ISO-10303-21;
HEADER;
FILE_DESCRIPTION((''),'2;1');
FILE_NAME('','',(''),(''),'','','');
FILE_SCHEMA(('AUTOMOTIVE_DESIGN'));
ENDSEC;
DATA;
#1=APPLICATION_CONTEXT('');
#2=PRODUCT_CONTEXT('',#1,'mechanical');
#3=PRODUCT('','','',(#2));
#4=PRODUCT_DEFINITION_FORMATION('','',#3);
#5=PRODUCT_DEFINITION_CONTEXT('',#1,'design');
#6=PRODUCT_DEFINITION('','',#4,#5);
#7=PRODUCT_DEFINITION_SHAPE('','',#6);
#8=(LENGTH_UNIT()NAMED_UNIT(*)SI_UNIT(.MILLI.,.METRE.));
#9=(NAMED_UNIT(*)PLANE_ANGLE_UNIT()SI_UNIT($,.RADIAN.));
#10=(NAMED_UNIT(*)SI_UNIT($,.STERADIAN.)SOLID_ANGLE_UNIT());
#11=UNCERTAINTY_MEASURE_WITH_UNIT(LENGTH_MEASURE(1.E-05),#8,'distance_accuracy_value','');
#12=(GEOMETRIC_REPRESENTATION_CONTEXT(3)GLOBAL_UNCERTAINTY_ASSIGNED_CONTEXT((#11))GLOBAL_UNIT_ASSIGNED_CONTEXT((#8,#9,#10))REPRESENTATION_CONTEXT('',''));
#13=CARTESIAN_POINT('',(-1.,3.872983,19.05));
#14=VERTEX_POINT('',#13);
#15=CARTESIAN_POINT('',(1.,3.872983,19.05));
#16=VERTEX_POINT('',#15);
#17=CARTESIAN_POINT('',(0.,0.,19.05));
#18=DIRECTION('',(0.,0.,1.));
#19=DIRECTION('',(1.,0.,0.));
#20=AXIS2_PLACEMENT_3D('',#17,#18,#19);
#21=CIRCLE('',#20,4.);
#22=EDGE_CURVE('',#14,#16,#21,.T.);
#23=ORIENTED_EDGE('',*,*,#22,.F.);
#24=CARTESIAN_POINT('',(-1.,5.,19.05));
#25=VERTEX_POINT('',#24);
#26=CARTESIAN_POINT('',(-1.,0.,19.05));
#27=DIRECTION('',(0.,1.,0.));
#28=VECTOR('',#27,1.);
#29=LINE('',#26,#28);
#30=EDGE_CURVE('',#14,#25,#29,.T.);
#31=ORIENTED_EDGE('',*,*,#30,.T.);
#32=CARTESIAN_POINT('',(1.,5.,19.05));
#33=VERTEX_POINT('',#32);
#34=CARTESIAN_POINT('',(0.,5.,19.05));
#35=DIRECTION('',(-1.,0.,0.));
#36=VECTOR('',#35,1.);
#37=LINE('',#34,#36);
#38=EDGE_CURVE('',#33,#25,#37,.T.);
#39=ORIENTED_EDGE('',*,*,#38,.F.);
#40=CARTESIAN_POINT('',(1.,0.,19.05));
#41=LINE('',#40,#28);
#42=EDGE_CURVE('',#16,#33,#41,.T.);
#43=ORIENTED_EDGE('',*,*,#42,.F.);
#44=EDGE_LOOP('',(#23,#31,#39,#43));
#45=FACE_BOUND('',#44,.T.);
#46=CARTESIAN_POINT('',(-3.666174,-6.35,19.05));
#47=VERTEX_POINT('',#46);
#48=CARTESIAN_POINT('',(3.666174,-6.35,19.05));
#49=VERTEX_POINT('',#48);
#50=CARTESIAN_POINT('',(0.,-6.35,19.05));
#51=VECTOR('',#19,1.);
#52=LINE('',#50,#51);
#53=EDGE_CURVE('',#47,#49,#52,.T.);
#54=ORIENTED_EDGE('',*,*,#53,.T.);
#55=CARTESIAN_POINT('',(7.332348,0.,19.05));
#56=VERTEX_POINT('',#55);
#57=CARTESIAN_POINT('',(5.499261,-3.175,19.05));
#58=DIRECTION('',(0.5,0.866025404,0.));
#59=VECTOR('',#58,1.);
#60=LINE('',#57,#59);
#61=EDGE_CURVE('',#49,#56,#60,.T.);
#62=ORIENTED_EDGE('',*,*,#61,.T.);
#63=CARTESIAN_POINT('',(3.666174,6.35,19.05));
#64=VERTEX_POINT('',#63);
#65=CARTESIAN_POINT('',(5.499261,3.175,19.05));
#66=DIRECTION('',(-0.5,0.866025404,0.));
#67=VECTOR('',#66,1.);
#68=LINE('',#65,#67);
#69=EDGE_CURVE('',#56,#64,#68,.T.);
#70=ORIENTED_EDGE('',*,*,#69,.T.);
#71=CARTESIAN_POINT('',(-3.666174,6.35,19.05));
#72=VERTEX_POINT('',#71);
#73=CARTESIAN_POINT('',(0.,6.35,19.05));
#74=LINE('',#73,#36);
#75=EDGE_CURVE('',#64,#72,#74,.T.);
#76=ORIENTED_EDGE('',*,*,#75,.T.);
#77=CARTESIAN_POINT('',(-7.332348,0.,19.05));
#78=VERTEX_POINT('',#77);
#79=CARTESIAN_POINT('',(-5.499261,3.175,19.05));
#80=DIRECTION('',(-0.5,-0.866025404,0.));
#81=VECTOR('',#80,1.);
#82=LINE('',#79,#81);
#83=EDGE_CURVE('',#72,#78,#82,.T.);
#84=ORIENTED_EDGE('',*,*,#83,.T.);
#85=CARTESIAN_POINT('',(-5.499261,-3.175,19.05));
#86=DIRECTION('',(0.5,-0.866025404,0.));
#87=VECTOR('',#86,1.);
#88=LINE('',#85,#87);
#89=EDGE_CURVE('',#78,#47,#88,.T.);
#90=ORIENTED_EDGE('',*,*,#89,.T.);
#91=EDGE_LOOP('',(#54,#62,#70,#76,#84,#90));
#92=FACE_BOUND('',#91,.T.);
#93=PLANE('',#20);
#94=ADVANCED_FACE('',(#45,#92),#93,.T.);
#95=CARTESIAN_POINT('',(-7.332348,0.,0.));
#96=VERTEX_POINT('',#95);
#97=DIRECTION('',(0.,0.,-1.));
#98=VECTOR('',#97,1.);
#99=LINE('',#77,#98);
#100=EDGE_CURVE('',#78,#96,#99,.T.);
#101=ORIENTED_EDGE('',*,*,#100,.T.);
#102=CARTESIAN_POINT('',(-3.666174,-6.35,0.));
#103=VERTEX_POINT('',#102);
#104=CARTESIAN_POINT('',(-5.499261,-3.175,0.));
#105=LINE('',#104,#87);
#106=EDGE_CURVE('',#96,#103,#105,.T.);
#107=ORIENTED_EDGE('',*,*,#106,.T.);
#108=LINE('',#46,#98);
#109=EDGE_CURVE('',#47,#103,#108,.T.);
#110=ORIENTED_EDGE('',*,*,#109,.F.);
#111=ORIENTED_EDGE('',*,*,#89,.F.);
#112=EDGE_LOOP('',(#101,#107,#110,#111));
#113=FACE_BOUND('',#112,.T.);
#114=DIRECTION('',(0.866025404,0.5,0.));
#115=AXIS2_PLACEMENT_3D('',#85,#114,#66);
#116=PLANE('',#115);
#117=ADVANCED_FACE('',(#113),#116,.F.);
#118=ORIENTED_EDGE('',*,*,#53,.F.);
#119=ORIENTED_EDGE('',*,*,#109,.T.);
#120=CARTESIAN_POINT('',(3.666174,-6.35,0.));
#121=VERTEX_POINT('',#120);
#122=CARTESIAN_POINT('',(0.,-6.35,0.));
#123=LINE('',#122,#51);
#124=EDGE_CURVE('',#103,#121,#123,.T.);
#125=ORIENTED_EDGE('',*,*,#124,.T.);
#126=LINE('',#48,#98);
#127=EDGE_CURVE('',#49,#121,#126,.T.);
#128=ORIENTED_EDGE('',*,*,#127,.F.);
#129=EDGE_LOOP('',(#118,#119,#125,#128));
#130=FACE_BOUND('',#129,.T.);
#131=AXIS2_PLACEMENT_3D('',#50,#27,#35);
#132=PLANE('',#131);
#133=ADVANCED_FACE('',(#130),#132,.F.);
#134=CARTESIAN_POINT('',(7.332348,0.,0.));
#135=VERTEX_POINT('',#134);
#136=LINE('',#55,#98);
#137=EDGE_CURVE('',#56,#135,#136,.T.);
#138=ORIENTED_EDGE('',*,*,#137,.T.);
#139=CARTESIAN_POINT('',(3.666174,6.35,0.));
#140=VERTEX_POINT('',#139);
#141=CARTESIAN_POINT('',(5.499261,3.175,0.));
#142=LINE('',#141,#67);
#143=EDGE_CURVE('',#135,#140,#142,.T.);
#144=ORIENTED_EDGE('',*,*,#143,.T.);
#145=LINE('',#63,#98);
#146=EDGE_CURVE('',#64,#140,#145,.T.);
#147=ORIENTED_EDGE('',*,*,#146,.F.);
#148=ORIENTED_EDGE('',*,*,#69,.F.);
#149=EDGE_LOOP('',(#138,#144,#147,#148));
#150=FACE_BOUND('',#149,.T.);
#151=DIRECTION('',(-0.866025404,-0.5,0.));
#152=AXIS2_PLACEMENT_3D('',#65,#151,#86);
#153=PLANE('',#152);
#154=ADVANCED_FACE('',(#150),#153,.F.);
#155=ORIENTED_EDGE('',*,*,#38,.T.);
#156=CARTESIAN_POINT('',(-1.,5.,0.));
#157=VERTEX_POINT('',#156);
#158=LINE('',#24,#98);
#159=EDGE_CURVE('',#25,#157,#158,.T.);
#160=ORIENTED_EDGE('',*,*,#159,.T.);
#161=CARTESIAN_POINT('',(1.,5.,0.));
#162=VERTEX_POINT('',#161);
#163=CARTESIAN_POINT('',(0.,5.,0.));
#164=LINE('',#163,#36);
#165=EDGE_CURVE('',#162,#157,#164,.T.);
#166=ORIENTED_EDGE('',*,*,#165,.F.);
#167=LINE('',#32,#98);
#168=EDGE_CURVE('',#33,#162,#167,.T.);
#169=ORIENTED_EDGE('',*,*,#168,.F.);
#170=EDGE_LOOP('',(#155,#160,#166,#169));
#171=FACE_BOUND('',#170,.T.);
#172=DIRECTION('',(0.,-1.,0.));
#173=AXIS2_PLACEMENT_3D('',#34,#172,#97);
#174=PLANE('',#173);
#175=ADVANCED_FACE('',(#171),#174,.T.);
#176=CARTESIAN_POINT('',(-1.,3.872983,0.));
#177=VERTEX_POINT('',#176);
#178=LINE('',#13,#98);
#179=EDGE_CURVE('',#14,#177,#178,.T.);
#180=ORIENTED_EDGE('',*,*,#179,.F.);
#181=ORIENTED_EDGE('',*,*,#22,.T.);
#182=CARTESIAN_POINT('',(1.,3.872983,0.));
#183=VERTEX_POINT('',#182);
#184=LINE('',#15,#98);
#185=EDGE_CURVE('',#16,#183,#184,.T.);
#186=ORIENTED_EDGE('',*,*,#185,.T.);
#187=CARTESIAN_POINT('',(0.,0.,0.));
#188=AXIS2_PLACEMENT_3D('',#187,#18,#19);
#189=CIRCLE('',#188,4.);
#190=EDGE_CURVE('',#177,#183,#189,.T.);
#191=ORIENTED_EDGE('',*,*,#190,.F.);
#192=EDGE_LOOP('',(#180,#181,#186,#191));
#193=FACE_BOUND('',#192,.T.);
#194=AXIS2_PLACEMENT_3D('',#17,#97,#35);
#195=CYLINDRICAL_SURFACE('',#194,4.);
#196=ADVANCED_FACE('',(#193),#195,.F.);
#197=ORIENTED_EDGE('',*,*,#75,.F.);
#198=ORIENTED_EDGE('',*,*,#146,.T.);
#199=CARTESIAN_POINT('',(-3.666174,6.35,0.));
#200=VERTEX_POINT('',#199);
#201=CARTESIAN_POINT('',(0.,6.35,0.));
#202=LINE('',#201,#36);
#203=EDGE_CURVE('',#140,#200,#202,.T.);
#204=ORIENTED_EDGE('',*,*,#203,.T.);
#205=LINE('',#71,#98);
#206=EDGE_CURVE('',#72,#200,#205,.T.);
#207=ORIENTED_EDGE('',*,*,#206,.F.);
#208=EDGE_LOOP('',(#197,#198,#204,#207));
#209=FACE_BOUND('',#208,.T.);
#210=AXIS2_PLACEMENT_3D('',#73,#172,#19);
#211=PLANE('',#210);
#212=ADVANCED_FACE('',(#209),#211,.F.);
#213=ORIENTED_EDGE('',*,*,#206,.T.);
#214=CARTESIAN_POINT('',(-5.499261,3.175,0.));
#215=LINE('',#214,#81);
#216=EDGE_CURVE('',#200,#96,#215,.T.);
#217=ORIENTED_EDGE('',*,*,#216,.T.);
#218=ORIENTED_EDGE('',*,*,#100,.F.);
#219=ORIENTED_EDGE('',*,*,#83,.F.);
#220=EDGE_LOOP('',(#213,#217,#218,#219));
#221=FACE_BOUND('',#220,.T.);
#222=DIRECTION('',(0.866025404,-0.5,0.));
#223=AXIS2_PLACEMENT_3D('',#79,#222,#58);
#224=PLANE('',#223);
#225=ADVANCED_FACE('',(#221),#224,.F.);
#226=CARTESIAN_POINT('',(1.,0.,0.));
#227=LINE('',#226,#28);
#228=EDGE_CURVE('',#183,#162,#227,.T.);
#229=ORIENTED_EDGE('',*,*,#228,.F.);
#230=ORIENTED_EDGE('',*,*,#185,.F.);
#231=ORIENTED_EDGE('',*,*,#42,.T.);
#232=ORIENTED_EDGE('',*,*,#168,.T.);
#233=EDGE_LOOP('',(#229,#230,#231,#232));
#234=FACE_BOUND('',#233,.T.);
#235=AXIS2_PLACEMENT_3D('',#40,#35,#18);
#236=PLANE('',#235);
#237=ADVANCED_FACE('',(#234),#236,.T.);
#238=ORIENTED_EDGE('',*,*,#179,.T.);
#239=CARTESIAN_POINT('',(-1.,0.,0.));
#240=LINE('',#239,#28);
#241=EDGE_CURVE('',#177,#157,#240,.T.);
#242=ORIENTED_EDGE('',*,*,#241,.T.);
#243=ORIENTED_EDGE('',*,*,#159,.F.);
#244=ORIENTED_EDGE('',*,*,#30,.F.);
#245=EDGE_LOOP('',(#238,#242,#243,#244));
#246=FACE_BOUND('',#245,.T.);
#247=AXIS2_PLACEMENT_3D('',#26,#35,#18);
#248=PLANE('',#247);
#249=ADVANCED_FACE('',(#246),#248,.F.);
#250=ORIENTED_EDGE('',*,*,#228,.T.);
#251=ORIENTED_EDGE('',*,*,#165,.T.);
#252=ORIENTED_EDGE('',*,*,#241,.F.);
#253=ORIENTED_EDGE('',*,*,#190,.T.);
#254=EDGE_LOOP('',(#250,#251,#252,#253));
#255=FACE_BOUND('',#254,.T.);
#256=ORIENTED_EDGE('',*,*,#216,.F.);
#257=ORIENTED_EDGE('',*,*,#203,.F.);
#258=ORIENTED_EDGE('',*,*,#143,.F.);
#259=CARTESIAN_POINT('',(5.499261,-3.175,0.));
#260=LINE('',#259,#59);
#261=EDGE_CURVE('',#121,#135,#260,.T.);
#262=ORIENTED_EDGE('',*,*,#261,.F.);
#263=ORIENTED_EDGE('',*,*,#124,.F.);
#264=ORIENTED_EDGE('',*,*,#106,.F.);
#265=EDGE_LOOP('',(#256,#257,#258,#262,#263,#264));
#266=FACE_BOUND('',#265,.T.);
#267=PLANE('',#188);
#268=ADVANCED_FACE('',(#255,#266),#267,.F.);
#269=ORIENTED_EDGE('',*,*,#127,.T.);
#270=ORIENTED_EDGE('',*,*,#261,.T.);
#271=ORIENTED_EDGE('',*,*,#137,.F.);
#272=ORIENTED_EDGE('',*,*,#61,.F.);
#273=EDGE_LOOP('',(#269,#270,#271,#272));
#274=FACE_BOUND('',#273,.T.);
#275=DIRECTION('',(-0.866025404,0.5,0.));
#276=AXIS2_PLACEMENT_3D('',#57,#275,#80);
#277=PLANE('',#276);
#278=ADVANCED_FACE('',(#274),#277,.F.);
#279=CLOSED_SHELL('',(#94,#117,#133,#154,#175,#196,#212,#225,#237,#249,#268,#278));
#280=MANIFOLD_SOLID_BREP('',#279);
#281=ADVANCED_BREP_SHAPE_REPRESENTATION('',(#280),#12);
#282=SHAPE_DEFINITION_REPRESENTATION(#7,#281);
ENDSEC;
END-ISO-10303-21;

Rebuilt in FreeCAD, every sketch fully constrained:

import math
import FreeCAD as App
import Part
import Sketcher
from FreeCAD import Vector
Q = App.Units.Quantity


def add_polygon(sketch, points):
    """Adds a closed chain of lines whose ends are joined by coincident constraints."""
    first, n = sketch.GeometryCount, len(points)
    for a, b in zip(points, points[1:] + points[:1]):
        sketch.addGeometry(Part.LineSegment(App.Vector(*a, 0), App.Vector(*b, 0)), False)
    for i in range(n):
        sketch.addConstraint(Sketcher.Constraint("Coincident", first + i, 2, first + (i + 1) % n, 1))

doc = App.newDocument("Part")
body = doc.addObject("PartDesign::Body", "Body")

sketch1 = body.newObject("Sketcher::SketchObject", "Sketch")
sketch1.AttachmentSupport = (doc.getObject("XY_Plane"), [""])
sketch1.MapMode = "FlatFace"
add_polygon(sketch1, [(3.666174, -6.35), (7.332348, 0), (3.666174, 6.35), (-3.666174, 6.35), (-7.332348, 0), (-3.666174, -6.35)])
sketch1.addGeometry(Part.LineSegment(Vector(-1, 5, 0), Vector(1, 5, 0)), False)
sketch1.addGeometry(Part.LineSegment(Vector(1, 5, 0), Vector(1, 3.872983, 0)), False)
sketch1.addGeometry(Part.ArcOfCircle(Part.Circle(Vector(0, 0, 0), Vector(0, 0, 1), 4), math.radians(0), math.radians(75.522488)), False)
sketch1.addGeometry(Part.ArcOfCircle(Part.Circle(Vector(0, 0, 0), Vector(0, 0, 1), 4), math.radians(104.477512), math.radians(360)), False)
sketch1.addGeometry(Part.LineSegment(Vector(-1, 3.872983, 0), Vector(-1, 5, 0)), False)
sketch1.addConstraint([
    Sketcher.Constraint("Coincident", 6, 2, 7, 1),
    Sketcher.Constraint("Coincident", 7, 2, 8, 2),
    Sketcher.Constraint("Tangent", 8, 1, 9, 2),
    Sketcher.Constraint("Coincident", 9, 1, 10, 1),
    Sketcher.Constraint("Coincident", 10, 2, 6, 1),
    Sketcher.Constraint("Horizontal", 2),
    Sketcher.Constraint("Horizontal", 5),
    Sketcher.Constraint("Horizontal", 6),
    Sketcher.Constraint("Vertical", 7),
    Sketcher.Constraint("Vertical", 10),
    Sketcher.Constraint("Coincident", 8, 3, -1, 1),
    Sketcher.Constraint("Equal", 8, 9),
    Sketcher.Constraint("Symmetric", 0, 2, 3, 2, -1, 1),
    Sketcher.Constraint("Symmetric", 1, 2, 4, 2, -1, 1),
    Sketcher.Constraint("PointOnObject", 0, 2, -1),
    Sketcher.Constraint("PointOnObject", 8, 1, -1),
    Sketcher.Constraint("Parallel", 0, 3),
    Sketcher.Constraint("Horizontal", 7, 2, 9, 1),
    Sketcher.Constraint("Vertical", 2, 2, 4, 2),
    Sketcher.Constraint("Radius", 8, 4.0),
    Sketcher.Constraint("DistanceX", 6, 1, 6, 2, 2.0),
    Sketcher.Constraint("Angle", 0, Q("60 deg")),
    Sketcher.Constraint("DistanceY", -1, 1, 6, 2, 5.0),
    Sketcher.Constraint("DistanceY", 4, 2, 2, 2, 12.7),
    Sketcher.Constraint("DistanceX", 2, 2, 2, 1, 7.332348),
])
pad1 = body.newObject("PartDesign::Pad", "Pad")
pad1.Profile = sketch1
pad1.Length = 19.05

doc.recompute()
